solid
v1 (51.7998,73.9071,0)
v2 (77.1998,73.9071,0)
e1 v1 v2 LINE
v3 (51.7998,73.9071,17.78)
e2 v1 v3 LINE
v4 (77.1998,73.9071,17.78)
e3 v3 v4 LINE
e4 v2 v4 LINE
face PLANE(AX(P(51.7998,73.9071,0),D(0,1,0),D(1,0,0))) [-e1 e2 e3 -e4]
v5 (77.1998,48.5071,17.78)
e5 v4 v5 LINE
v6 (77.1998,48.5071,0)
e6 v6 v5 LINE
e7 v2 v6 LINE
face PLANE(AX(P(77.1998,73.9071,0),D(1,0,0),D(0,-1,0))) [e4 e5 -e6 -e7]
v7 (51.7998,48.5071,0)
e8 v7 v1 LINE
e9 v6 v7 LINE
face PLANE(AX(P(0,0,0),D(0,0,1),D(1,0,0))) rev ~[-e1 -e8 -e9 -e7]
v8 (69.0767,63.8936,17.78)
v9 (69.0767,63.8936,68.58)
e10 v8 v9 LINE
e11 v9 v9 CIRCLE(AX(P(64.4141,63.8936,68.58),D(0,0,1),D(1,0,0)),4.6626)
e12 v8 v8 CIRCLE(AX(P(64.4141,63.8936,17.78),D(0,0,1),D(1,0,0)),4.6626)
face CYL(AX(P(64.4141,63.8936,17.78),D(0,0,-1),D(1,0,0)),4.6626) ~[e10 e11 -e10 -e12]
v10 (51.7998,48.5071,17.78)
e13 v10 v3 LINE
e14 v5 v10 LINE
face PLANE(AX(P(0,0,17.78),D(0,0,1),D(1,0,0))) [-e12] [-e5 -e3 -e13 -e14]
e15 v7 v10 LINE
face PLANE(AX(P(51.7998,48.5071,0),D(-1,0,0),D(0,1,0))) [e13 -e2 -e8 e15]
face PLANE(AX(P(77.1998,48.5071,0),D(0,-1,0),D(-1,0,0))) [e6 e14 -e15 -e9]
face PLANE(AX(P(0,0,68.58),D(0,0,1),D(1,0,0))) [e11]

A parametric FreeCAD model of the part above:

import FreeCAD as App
import Part
import Sketcher
Q = App.Units.Quantity

doc = App.newDocument("Part")
body = doc.addObject("PartDesign::Body", "Body")

# Sketch on XY plane
sketch1 = doc.addObject("Sketcher::SketchObject", "Sketch")
body.addObject(sketch1)
sketch1.AttachmentSupport = (doc.XY_Plane, [""])
sketch1.MapMode = "FlatFace"
sketch1.addGeometry([
    Part.LineSegment(App.Vector(77, 74, 0), App.Vector(52, 74, 0)),
    Part.LineSegment(App.Vector(52, 74, 0), App.Vector(52, 49, 0)),
    Part.LineSegment(App.Vector(52, 49, 0), App.Vector(77, 49, 0)),
    Part.LineSegment(App.Vector(77, 49, 0), App.Vector(77, 74, 0)),
], False)
sketch1.addConstraint([
    Sketcher.Constraint("Coincident", 0, 2, 1, 1),
    Sketcher.Constraint("Coincident", 1, 2, 2, 1),
    Sketcher.Constraint("Coincident", 2, 2, 3, 1),
    Sketcher.Constraint("Coincident", 3, 2, 0, 1),
    Sketcher.Constraint("Horizontal", 0),
    Sketcher.Constraint("Vertical", 1),
    Sketcher.Constraint("Horizontal", 2),
    Sketcher.Constraint("Vertical", 3),
    Sketcher.Constraint("Equal", 2, 1),
    Sketcher.Constraint("DistanceX", 0, 2, 0, 1, Q("1 in")),
    Sketcher.Constraint("DistanceX", -1, 1, 0, 2, Q("51.7998 mm")),
    Sketcher.Constraint("DistanceY", -1, 1, 0, 2, Q("73.907 mm")),
])
pad1 = doc.addObject("PartDesign::Pad", "Pad")
body.addObject(pad1)
pad1.Profile = sketch1
pad1.Length = Q("0.7 in")

# Sketch on XY plane
sketch2 = doc.addObject("Sketcher::SketchObject", "Sketch001")
body.addObject(sketch2)
sketch2.AttachmentSupport = (doc.XY_Plane, [""])
sketch2.MapMode = "FlatFace"
sketch2.AttachmentOffset = App.Placement(App.Vector(0, 0, 0.7 * 25.4), App.Rotation())
sketch2.addGeometry(Part.Circle(App.Vector(64.4, 63.9, 0), App.Vector(0, 0, 1), 4.7), False)
sketch2.addConstraint([
    Sketcher.Constraint("Diameter", 0, Q("9.3252 mm")),
    Sketcher.Constraint("DistanceX", -1, 1, 0, 3, Q("2.536 in")),
    Sketcher.Constraint("DistanceY", -1, 1, 0, 3, Q("2.5155 in")),
])
pad2 = doc.addObject("PartDesign::Pad", "Pad001")
body.addObject(pad2)
pad2.Profile = sketch2
pad2.Length = Q("2 in")

doc.recompute()
